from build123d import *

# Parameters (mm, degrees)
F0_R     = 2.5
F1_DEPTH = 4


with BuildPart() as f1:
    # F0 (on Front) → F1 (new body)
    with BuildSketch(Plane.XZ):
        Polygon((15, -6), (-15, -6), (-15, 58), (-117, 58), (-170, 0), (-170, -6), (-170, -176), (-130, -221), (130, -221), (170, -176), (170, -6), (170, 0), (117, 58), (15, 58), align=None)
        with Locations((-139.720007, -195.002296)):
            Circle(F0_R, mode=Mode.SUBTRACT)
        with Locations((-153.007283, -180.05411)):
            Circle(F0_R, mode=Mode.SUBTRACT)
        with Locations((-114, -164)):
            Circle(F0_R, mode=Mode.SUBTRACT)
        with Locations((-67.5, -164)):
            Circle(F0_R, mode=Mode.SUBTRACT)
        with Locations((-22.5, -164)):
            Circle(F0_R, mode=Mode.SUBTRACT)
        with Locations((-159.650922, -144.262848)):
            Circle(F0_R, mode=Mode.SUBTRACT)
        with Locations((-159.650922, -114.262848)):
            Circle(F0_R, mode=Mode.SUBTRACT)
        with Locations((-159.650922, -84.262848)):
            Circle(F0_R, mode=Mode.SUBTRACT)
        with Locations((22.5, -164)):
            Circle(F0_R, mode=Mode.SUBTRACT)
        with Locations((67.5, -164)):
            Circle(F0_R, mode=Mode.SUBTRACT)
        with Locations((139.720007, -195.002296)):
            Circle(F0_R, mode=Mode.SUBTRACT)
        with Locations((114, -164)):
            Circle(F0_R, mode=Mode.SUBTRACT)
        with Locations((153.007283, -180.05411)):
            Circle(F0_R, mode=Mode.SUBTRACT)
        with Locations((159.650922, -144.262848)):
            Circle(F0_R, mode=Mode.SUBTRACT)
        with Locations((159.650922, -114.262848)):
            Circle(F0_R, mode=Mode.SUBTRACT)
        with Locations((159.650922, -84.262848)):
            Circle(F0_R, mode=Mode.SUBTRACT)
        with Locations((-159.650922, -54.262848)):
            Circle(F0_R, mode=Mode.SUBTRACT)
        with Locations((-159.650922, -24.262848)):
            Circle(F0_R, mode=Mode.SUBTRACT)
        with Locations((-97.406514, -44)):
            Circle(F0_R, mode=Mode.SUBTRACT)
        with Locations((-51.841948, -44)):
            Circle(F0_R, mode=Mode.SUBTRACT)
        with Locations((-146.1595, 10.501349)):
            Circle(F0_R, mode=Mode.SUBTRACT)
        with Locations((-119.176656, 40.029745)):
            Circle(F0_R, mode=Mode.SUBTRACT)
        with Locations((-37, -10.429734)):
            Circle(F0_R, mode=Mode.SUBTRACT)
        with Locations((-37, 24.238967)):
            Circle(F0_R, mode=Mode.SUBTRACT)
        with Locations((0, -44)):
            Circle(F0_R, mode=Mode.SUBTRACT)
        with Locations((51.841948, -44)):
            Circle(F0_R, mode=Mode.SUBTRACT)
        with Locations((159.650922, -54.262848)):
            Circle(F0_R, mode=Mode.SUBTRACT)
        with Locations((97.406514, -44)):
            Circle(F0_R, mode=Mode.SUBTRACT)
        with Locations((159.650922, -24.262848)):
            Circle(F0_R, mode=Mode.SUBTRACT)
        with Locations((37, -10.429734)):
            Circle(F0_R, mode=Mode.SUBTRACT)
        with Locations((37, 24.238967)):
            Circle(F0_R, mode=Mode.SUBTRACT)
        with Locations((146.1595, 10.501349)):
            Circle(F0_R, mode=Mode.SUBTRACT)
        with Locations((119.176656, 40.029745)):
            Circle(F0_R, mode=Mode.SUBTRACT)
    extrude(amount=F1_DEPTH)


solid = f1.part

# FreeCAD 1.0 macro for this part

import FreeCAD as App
import Part
import Sketcher
from FreeCAD import Vector

doc = App.newDocument("Part")
params = doc.addObject("Spreadsheet::Sheet", "Params")
for row, (alias, value) in enumerate([
    ("sketch1_diameter", "5 mm"),
    ("sketch1_width", "30 mm"),
    ("sketch1_width2", "102 mm"),
    ("sketch1_width3", "260 mm"),
    ("sketch1_height", "64 mm"),
    ("pad1_length", "4 mm"),
], start=1):
    params.set(f"A{row}", alias)
    params.set(f"B{row}", "=" + value)
    params.setAlias(f"B{row}", alias)

body = doc.addObject("PartDesign::Body", "Body")

# Sketch on XZ plane
sketch1 = body.newObject("Sketcher::SketchObject", "Sketch")
sketch1.AttachmentSupport = (doc.getObject("XZ_Plane"), [""])
sketch1.MapMode = "FlatFace"
sketch1.addGeometry(Part.LineSegment(Vector(15, -6, 0), Vector(-15, -6, 0)), False)
sketch1.addGeometry(Part.LineSegment(Vector(-15, -6, 0), Vector(-15, 58, 0)), False)
sketch1.addGeometry(Part.LineSegment(Vector(-15, 58, 0), Vector(-117, 58, 0)), False)
sketch1.addGeometry(Part.LineSegment(Vector(-117, 58, 0), Vector(-170, 0, 0)), False)
sketch1.addGeometry(Part.LineSegment(Vector(-170, 0, 0), Vector(-170, -176, 0)), False)
sketch1.addGeometry(Part.LineSegment(Vector(-170, -176, 0), Vector(-130, -221, 0)), False)
sketch1.addGeometry(Part.LineSegment(Vector(-130, -221, 0), Vector(130, -221, 0)), False)
sketch1.addGeometry(Part.LineSegment(Vector(130, -221, 0), Vector(170, -176, 0)), False)
sketch1.addGeometry(Part.LineSegment(Vector(170, -176, 0), Vector(170, 0, 0)), False)
sketch1.addGeometry(Part.LineSegment(Vector(170, 0, 0), Vector(117, 58, 0)), False)
sketch1.addGeometry(Part.LineSegment(Vector(117, 58, 0), Vector(15, 58, 0)), False)
sketch1.addGeometry(Part.LineSegment(Vector(15, 58, 0), Vector(15, -6, 0)), False)
sketch1.addGeometry(Part.Circle(Vector(-139.720007, -195.002296, 0), Vector(0, 0, 1), 2.5), False)
sketch1.addGeometry(Part.Circle(Vector(-153.007283, -180.05411, 0), Vector(0, 0, 1), 2.5), False)
sketch1.addGeometry(Part.Circle(Vector(-159.650922, -144.262848, 0), Vector(0, 0, 1), 2.5), False)
sketch1.addGeometry(Part.Circle(Vector(-114, -164, 0), Vector(0, 0, 1), 2.5), False)
sketch1.addGeometry(Part.Circle(Vector(-67.5, -164, 0), Vector(0, 0, 1), 2.5), False)
sketch1.addGeometry(Part.Circle(Vector(-22.5, -164, 0), Vector(0, 0, 1), 2.5), False)
sketch1.addGeometry(Part.Circle(Vector(-159.650922, -114.262848, 0), Vector(0, 0, 1), 2.5), False)
sketch1.addGeometry(Part.Circle(Vector(-159.650922, -84.262848, 0), Vector(0, 0, 1), 2.5), False)
sketch1.addGeometry(Part.Circle(Vector(22.5, -164, 0), Vector(0, 0, 1), 2.5), False)
sketch1.addGeometry(Part.Circle(Vector(67.5, -164, 0), Vector(0, 0, 1), 2.5), False)
sketch1.addGeometry(Part.Circle(Vector(139.720007, -195.002296, 0), Vector(0, 0, 1), 2.5), False)
sketch1.addGeometry(Part.Circle(Vector(153.007283, -180.05411, 0), Vector(0, 0, 1), 2.5), False)
sketch1.addGeometry(Part.Circle(Vector(114, -164, 0), Vector(0, 0, 1), 2.5), False)
sketch1.addGeometry(Part.Circle(Vector(159.650922, -144.262848, 0), Vector(0, 0, 1), 2.5), False)
sketch1.addGeometry(Part.Circle(Vector(159.650922, -114.262848, 0), Vector(0, 0, 1), 2.5), False)
sketch1.addGeometry(Part.Circle(Vector(159.650922, -84.262848, 0), Vector(0, 0, 1), 2.5), False)
sketch1.addGeometry(Part.Circle(Vector(-159.650922, -54.262848, 0), Vector(0, 0, 1), 2.5), False)
sketch1.addGeometry(Part.Circle(Vector(-159.650922, -24.262848, 0), Vector(0, 0, 1), 2.5), False)
sketch1.addGeometry(Part.Circle(Vector(-97.406514, -44, 0), Vector(0, 0, 1), 2.5), False)
sketch1.addGeometry(Part.Circle(Vector(-51.841948, -44, 0), Vector(0, 0, 1), 2.5), False)
sketch1.addGeometry(Part.Circle(Vector(-146.1595, 10.501349, 0), Vector(0, 0, 1), 2.5), False)
sketch1.addGeometry(Part.Circle(Vector(-119.176656, 40.029745, 0), Vector(0, 0, 1), 2.5), False)
sketch1.addGeometry(Part.Circle(Vector(-37, -10.429734, 0), Vector(0, 0, 1), 2.5), False)
sketch1.addGeometry(Part.Circle(Vector(-37, 24.238967, 0), Vector(0, 0, 1), 2.5), False)
sketch1.addGeometry(Part.Circle(Vector(0, -44, 0), Vector(0, 0, 1), 2.5), False)
sketch1.addGeometry(Part.Circle(Vector(51.841948, -44, 0), Vector(0, 0, 1), 2.5), False)
sketch1.addGeometry(Part.Circle(Vector(159.650922, -54.262848, 0), Vector(0, 0, 1), 2.5), False)
sketch1.addGeometry(Part.Circle(Vector(97.406514, -44, 0), Vector(0, 0, 1), 2.5), False)
sketch1.addGeometry(Part.Circle(Vector(159.650922, -24.262848, 0), Vector(0, 0, 1), 2.5), False)
sketch1.addGeometry(Part.Circle(Vector(37, -10.429734, 0), Vector(0, 0, 1), 2.5), False)
sketch1.addGeometry(Part.Circle(Vector(37, 24.238967, 0), Vector(0, 0, 1), 2.5), False)
sketch1.addGeometry(Part.Circle(Vector(146.1595, 10.501349, 0), Vector(0, 0, 1), 2.5), False)
sketch1.addGeometry(Part.Circle(Vector(119.176656, 40.029745, 0), Vector(0, 0, 1), 2.5), False)
sketch1.addConstraint(Sketcher.Constraint("Coincident", 0, 2, 1, 1))
sketch1.addConstraint(Sketcher.Constraint("Coincident", 1, 2, 2, 1))
sketch1.addConstraint(Sketcher.Constraint("Coincident", 2, 2, 3, 1))
sketch1.addConstraint(Sketcher.Constraint("Coincident", 3, 2, 4, 1))
sketch1.addConstraint(Sketcher.Constraint("Coincident", 4, 2, 5, 1))
sketch1.addConstraint(Sketcher.Constraint("Coincident", 5, 2, 6, 1))
sketch1.addConstraint(Sketcher.Constraint("Coincident", 6, 2, 7, 1))
sketch1.addConstraint(Sketcher.Constraint("Coincident", 7, 2, 8, 1))
sketch1.addConstraint(Sketcher.Constraint("Coincident", 8, 2, 9, 1))
sketch1.addConstraint(Sketcher.Constraint("Coincident", 9, 2, 10, 1))
sketch1.addConstraint(Sketcher.Constraint("Coincident", 10, 2, 11, 1))
sketch1.addConstraint(Sketcher.Constraint("Coincident", 11, 2, 0, 1))
sketch1.addConstraint(Sketcher.Constraint("Horizontal", 0))
sketch1.addConstraint(Sketcher.Constraint("Vertical", 1))
sketch1.addConstraint(Sketcher.Constraint("Horizontal", 2))
sketch1.addConstraint(Sketcher.Constraint("Vertical", 4))
sketch1.addConstraint(Sketcher.Constraint("Horizontal", 6))
sketch1.addConstraint(Sketcher.Constraint("Vertical", 8))
sketch1.addConstraint(Sketcher.Constraint("Horizontal", 10))
sketch1.addConstraint(Sketcher.Constraint("Vertical", 11))
sketch1.addConstraint(Sketcher.Constraint("Equal", 12, 13))
sketch1.addConstraint(Sketcher.Constraint("Equal", 13, 14))
sketch1.addConstraint(Sketcher.Constraint("Equal", 14, 15))
sketch1.addConstraint(Sketcher.Constraint("Equal", 15, 16))
sketch1.addConstraint(Sketcher.Constraint("Equal", 16, 17))
sketch1.addConstraint(Sketcher.Constraint("Equal", 17, 18))
sketch1.addConstraint(Sketcher.Constraint("Equal", 18, 19))
sketch1.addConstraint(Sketcher.Constraint("Equal", 19, 20))
sketch1.addConstraint(Sketcher.Constraint("Equal", 20, 21))
sketch1.addConstraint(Sketcher.Constraint("Equal", 21, 22))
sketch1.addConstraint(Sketcher.Constraint("Equal", 22, 23))
sketch1.addConstraint(Sketcher.Constraint("Equal", 23, 24))
sketch1.addConstraint(Sketcher.Constraint("Equal", 24, 25))
sketch1.addConstraint(Sketcher.Constraint("Equal", 25, 26))
sketch1.addConstraint(Sketcher.Constraint("Equal", 26, 27))
sketch1.addConstraint(Sketcher.Constraint("Equal", 27, 28))
sketch1.addConstraint(Sketcher.Constraint("Equal", 28, 29))
sketch1.addConstraint(Sketcher.Constraint("Equal", 29, 30))
sketch1.addConstraint(Sketcher.Constraint("Equal", 30, 31))
sketch1.addConstraint(Sketcher.Constraint("Equal", 31, 32))
sketch1.addConstraint(Sketcher.Constraint("Equal", 32, 33))
sketch1.addConstraint(Sketcher.Constraint("Equal", 33, 34))
sketch1.addConstraint(Sketcher.Constraint("Equal", 34, 35))
sketch1.addConstraint(Sketcher.Constraint("Equal", 35, 36))
sketch1.addConstraint(Sketcher.Constraint("Equal", 36, 37))
sketch1.addConstraint(Sketcher.Constraint("Equal", 37, 38))
sketch1.addConstraint(Sketcher.Constraint("Equal", 38, 39))
sketch1.addConstraint(Sketcher.Constraint("Equal", 39, 40))
sketch1.addConstraint(Sketcher.Constraint("Equal", 40, 41))
sketch1.addConstraint(Sketcher.Constraint("Equal", 41, 42))
sketch1.addConstraint(Sketcher.Constraint("Equal", 42, 43))
sketch1.addConstraint(Sketcher.Constraint("Equal", 43, 44))
sketch1.addConstraint(Sketcher.Constraint("Symmetric", 3, 2, 8, 2, -1, 1))
sketch1.addConstraint(Sketcher.Constraint("Symmetric", 17, 3, 20, 3, -2))
sketch1.addConstraint(Sketcher.Constraint("Symmetric", 16, 3, 21, 3, -2))
sketch1.addConstraint(Sketcher.Constraint("Symmetric", 12, 3, 22, 3, -2))
sketch1.addConstraint(Sketcher.Constraint("Symmetric", 13, 3, 23, 3, -2))
sketch1.addConstraint(Sketcher.Constraint("Symmetric", 15, 3, 24, 3, -2))
sketch1.addConstraint(Sketcher.Constraint("Symmetric", 14, 3, 25, 3, -2))
sketch1.addConstraint(Sketcher.Constraint("Symmetric", 18, 3, 26, 3, -2))
sketch1.addConstraint(Sketcher.Constraint("Symmetric", 19, 3, 27, 3, -2))
sketch1.addConstraint(Sketcher.Constraint("Symmetric", 31, 3, 37, 3, -2))
sketch1.addConstraint(Sketcher.Constraint("Symmetric", 28, 3, 38, 3, -2))
sketch1.addConstraint(Sketcher.Constraint("Symmetric", 30, 3, 39, 3, -2))
sketch1.addConstraint(Sketcher.Constraint("Symmetric", 29, 3, 40, 3, -2))
sketch1.addConstraint(Sketcher.Constraint("Symmetric", 34, 3, 41, 3, -2))
sketch1.addConstraint(Sketcher.Constraint("Symmetric", 35, 3, 42, 3, -2))
sketch1.addConstraint(Sketcher.Constraint("Symmetric", 32, 3, 43, 3, -2))
sketch1.addConstraint(Sketcher.Constraint("Symmetric", 33, 3, 44, 3, -2))
sketch1.addConstraint(Sketcher.Constraint("Symmetric", 2, 2, 9, 2, -2))
sketch1.addConstraint(Sketcher.Constraint("PointOnObject", 36, 3, -2))
sketch1.addConstraint(Sketcher.Constraint("PointOnObject", 3, 2, -1))
sketch1.addConstraint(Sketcher.Constraint("Horizontal", 15, 3, 16, 3))
sketch1.addConstraint(Sketcher.Constraint("Horizontal", 16, 3, 17, 3))
sketch1.addConstraint(Sketcher.Constraint("Horizontal", 30, 3, 31, 3))
sketch1.addConstraint(Sketcher.Constraint("Horizontal", 31, 3, 36, 3))
sketch1.addConstraint(Sketcher.Constraint("Horizontal", 4, 2, 7, 2))
sketch1.addConstraint(Sketcher.Constraint("Vertical", 14, 3, 18, 3))
sketch1.addConstraint(Sketcher.Constraint("Vertical", 18, 3, 19, 3))
sketch1.addConstraint(Sketcher.Constraint("Vertical", 19, 3, 28, 3))
sketch1.addConstraint(Sketcher.Constraint("Vertical", 28, 3, 29, 3))
sketch1.addConstraint(Sketcher.Constraint("Vertical", 34, 3, 35, 3))
sketch1.addConstraint(Sketcher.Constraint("Equal", 2, 10))
sketch1.addConstraint(Sketcher.Constraint("Equal", 5, 7))
sketch1.addConstraint(Sketcher.Constraint("Diameter", 12, 5.0))
sketch1.addConstraint(Sketcher.Constraint("DistanceX", 0, 2, 0, 1, 30.0))
sketch1.addConstraint(Sketcher.Constraint("DistanceX", 2, 2, 2, 1, 102.0))
sketch1.addConstraint(Sketcher.Constraint("DistanceX", 6, 1, 6, 2, 260.0))
sketch1.addConstraint(Sketcher.Constraint("DistanceY", 1, 1, 1, 2, 64.0))
sketch1.addConstraint(Sketcher.Constraint("DistanceY", 4, 2, 4, 1, 176.0))
sketch1.addConstraint(Sketcher.Constraint("DistanceX", 15, 3, -1, 1, 114.0))
sketch1.addConstraint(Sketcher.Constraint("DistanceY", 15, 3, -1, 1, 164.0))
sketch1.addConstraint(Sketcher.Constraint("DistanceY", 30, 3, -1, 1, 44.0))
sketch1.addConstraint(Sketcher.Constraint("DistanceX", 34, 3, -1, 1, 37.0))
sketch1.addConstraint(Sketcher.Constraint("DistanceY", 0, 2, -1, 1, 6.0))
sketch1.addConstraint(Sketcher.Constraint("DistanceX", 3, 2, -1, 1, 170.0))
sketch1.addConstraint(Sketcher.Constraint("DistanceY", 5, 2, -1, 1, 221.0))
sketch1.addConstraint(Sketcher.Constraint("DistanceX", 16, 3, 17, 3, 45.0))
sketch1.addConstraint(Sketcher.Constraint("DistanceY", 14, 3, 18, 3, 30.0))
sketch1.addConstraint(Sketcher.Constraint("DistanceY", 18, 3, 19, 3, 30.0))
sketch1.addConstraint(Sketcher.Constraint("DistanceX", 17, 3, 20, 3, 45.0))
sketch1.addConstraint(Sketcher.Constraint("DistanceY", 19, 3, 28, 3, 30.0))
sketch1.addConstraint(Sketcher.Constraint("DistanceY", 28, 3, 29, 3, 30.0))
sketch1.addConstraint(Sketcher.Constraint("DistanceX", 32, 3, -1, 1, 146.1595))
sketch1.addConstraint(Sketcher.Constraint("DistanceY", 34, 3, 35, 3, 34.668701))
sketch1.addConstraint(Sketcher.Constraint("DistanceY", 13, 3, -1, 1, 180.05411))
sketch1.addConstraint(Sketcher.Constraint("DistanceX", 14, 3, -1, 1, 159.650922))
sketch1.addConstraint(Sketcher.Constraint("DistanceY", 14, 3, -1, 1, 144.262848))
sketch1.addConstraint(Sketcher.Constraint("DistanceX", 31, 3, -1, 1, 51.841948))
sketch1.addConstraint(Sketcher.Constraint("DistanceY", -1, 1, 32, 3, 10.501349))
sketch1.addConstraint(Sketcher.Constraint("DistanceX", 14, 3, 13, 3, 6.643639))
sketch1.addConstraint(Sketcher.Constraint("DistanceY", 12, 3, 14, 3, 50.739448))
sketch1.addConstraint(Sketcher.Constraint("DistanceX", 28, 3, 30, 3, 62.244408))
sketch1.addConstraint(Sketcher.Constraint("DistanceX", 33, 3, 30, 3, 21.770142))
sketch1.addConstraint(Sketcher.Constraint("DistanceY", 34, 3, 33, 3, 50.459479))
sketch1.addConstraint(Sketcher.Constraint("DistanceX", 12, 3, -1, 1, 139.720007))
sketch1.addConstraint(Sketcher.Constraint("DistanceY", -1, 1, 33, 3, 40.029745))
sketch1.setExpression("Constraints[84]", "Params.sketch1_diameter")
sketch1.setExpression("Constraints[85]", "Params.sketch1_width")
sketch1.setExpression("Constraints[86]", "Params.sketch1_width2")
sketch1.setExpression("Constraints[87]", "Params.sketch1_width3")
sketch1.setExpression("Constraints[88]", "Params.sketch1_height")
pad1 = body.newObject("PartDesign::Pad", "Pad")
pad1.Profile = sketch1
pad1.setExpression("Length", "Params.pad1_length")

doc.recompute()
